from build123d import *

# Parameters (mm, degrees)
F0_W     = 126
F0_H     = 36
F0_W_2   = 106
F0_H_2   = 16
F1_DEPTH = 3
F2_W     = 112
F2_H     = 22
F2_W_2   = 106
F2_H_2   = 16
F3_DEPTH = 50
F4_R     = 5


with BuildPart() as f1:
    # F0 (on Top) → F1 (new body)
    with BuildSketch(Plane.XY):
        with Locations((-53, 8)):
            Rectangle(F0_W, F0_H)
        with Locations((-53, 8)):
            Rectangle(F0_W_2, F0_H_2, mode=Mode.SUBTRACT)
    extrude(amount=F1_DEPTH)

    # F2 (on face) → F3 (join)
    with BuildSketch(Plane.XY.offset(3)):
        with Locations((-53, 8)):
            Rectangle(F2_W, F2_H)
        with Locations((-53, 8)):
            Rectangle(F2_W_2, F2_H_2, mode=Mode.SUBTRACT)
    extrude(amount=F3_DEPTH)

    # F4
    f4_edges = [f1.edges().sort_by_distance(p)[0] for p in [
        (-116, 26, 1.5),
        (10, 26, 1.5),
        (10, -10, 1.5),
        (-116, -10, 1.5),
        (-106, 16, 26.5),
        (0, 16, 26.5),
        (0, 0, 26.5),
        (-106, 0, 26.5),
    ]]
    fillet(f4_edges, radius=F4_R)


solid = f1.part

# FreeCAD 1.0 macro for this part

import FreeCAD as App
import Part
import Sketcher

V = App.Vector


def edges_at(feature, points):
    """Names of the edges that pass closest to the given points."""
    edges = feature.Shape.Edges
    near = lambda p: min(range(len(edges)), key=lambda i: edges[i].distToShape(Part.Vertex(*p))[0])
    return sorted({f"Edge{near(p) + 1}" for p in points})

doc = App.newDocument("Part")
body = doc.addObject("PartDesign::Body", "Body")

sketch1 = body.newObject("Sketcher::SketchObject", "Sketch")
sketch1.AttachmentSupport = (doc.getObject("XY_Plane"), [""])
sketch1.MapMode = "FlatFace"
sketch1.addGeometry([
    Part.LineSegment(V(-116, 26, 0), V(-116, -10, 0)),
    Part.LineSegment(V(-116, -10, 0), V(10, -10, 0)),
    Part.LineSegment(V(10, -10, 0), V(10, 26, 0)),
    Part.LineSegment(V(10, 26, 0), V(-116, 26, 0)),
    Part.LineSegment(V(0, 0, 0), V(-106, 0, 0)),
    Part.LineSegment(V(-106, 0, 0), V(-106, 16, 0)),
    Part.LineSegment(V(-106, 16, 0), V(0, 16, 0)),
    Part.LineSegment(V(0, 16, 0), V(0, 0, 0)),
], False)
sketch1.addConstraint([
    Sketcher.Constraint("Coincident", 0, 2, 1, 1),
    Sketcher.Constraint("Coincident", 1, 2, 2, 1),
    Sketcher.Constraint("Coincident", 2, 2, 3, 1),
    Sketcher.Constraint("Coincident", 3, 2, 0, 1),
    Sketcher.Constraint("Coincident", 4, 2, 5, 1),
    Sketcher.Constraint("Coincident", 5, 2, 6, 1),
    Sketcher.Constraint("Coincident", 6, 2, 7, 1),
    Sketcher.Constraint("Coincident", 7, 2, 4, 1),
    Sketcher.Constraint("Vertical", 0),
    Sketcher.Constraint("Horizontal", 1),
    Sketcher.Constraint("Vertical", 2),
    Sketcher.Constraint("Horizontal", 3),
    Sketcher.Constraint("Horizontal", 4),
    Sketcher.Constraint("Vertical", 5),
    Sketcher.Constraint("Horizontal", 6),
    Sketcher.Constraint("Vertical", 7),
    Sketcher.Constraint("Coincident", 7, 2, -1, 1),
    Sketcher.Constraint("DistanceX", 1, 1, 1, 2, 126.0),
    Sketcher.Constraint("DistanceX", 4, 2, 4, 1, 106.0),
    Sketcher.Constraint("DistanceY", 0, 2, 0, 1, 36.0),
    Sketcher.Constraint("DistanceY", 5, 1, 5, 2, 16.0),
    Sketcher.Constraint("DistanceX", 0, 2, -1, 1, 116.0),
    Sketcher.Constraint("DistanceY", 0, 2, -1, 1, 10.0),
])
pad1 = body.newObject("PartDesign::Pad", "Pad")
pad1.Profile = sketch1
pad1.Length = 3

sketch2 = body.newObject("Sketcher::SketchObject", "Sketch001")
sketch2.AttachmentSupport = (doc.getObject("XY_Plane"), [""])
sketch2.MapMode = "FlatFace"
sketch2.AttachmentOffset = App.Placement(V(0, 0, 3), App.Rotation())
sketch2.addGeometry([
    Part.LineSegment(V(-109, 19, 0), V(-109, -3, 0)),
    Part.LineSegment(V(-109, -3, 0), V(3, -3, 0)),
    Part.LineSegment(V(3, -3, 0), V(3, 19, 0)),
    Part.LineSegment(V(3, 19, 0), V(-109, 19, 0)),
    Part.LineSegment(V(0, 0, 0), V(-106, 0, 0)),
    Part.LineSegment(V(-106, 0, 0), V(-106, 16, 0)),
    Part.LineSegment(V(-106, 16, 0), V(0, 16, 0)),
    Part.LineSegment(V(0, 16, 0), V(0, 0, 0)),
], False)
sketch2.addConstraint([
    Sketcher.Constraint("Coincident", 0, 2, 1, 1),
    Sketcher.Constraint("Coincident", 1, 2, 2, 1),
    Sketcher.Constraint("Coincident", 2, 2, 3, 1),
    Sketcher.Constraint("Coincident", 3, 2, 0, 1),
    Sketcher.Constraint("Coincident", 4, 2, 5, 1),
    Sketcher.Constraint("Coincident", 5, 2, 6, 1),
    Sketcher.Constraint("Coincident", 6, 2, 7, 1),
    Sketcher.Constraint("Coincident", 7, 2, 4, 1),
    Sketcher.Constraint("Vertical", 0),
    Sketcher.Constraint("Horizontal", 1),
    Sketcher.Constraint("Vertical", 2),
    Sketcher.Constraint("Horizontal", 3),
    Sketcher.Constraint("Horizontal", 4),
    Sketcher.Constraint("Vertical", 5),
    Sketcher.Constraint("Horizontal", 6),
    Sketcher.Constraint("Vertical", 7),
    Sketcher.Constraint("Coincident", 7, 2, -1, 1),
    Sketcher.Constraint("DistanceX", 1, 1, 1, 2, 112.0),
    Sketcher.Constraint("DistanceX", 4, 2, 4, 1, 106.0),
    Sketcher.Constraint("DistanceY", 0, 2, 0, 1, 22.0),
    Sketcher.Constraint("DistanceY", 5, 1, 5, 2, 16.0),
    Sketcher.Constraint("DistanceX", 0, 2, -1, 1, 109.0),
    Sketcher.Constraint("DistanceY", 0, 2, -1, 1, 3.0),
])
pad2 = body.newObject("PartDesign::Pad", "Pad001")
pad2.Profile = sketch2
pad2.Length = 50
doc.recompute()

fillet = body.newObject("PartDesign::Fillet", "Fillet")
fillet.Base = (pad2, edges_at(pad2, [
    (-116, 26, 1.5),
    (10, 26, 1.5),
    (10, -10, 1.5),
    (-116, -10, 1.5),
    (-106, 16, 26.5),
    (0, 16, 26.5),
    (0, 0, 26.5),
    (-106, 0, 26.5),
]))
fillet.Radius = 5

doc.recompute()
